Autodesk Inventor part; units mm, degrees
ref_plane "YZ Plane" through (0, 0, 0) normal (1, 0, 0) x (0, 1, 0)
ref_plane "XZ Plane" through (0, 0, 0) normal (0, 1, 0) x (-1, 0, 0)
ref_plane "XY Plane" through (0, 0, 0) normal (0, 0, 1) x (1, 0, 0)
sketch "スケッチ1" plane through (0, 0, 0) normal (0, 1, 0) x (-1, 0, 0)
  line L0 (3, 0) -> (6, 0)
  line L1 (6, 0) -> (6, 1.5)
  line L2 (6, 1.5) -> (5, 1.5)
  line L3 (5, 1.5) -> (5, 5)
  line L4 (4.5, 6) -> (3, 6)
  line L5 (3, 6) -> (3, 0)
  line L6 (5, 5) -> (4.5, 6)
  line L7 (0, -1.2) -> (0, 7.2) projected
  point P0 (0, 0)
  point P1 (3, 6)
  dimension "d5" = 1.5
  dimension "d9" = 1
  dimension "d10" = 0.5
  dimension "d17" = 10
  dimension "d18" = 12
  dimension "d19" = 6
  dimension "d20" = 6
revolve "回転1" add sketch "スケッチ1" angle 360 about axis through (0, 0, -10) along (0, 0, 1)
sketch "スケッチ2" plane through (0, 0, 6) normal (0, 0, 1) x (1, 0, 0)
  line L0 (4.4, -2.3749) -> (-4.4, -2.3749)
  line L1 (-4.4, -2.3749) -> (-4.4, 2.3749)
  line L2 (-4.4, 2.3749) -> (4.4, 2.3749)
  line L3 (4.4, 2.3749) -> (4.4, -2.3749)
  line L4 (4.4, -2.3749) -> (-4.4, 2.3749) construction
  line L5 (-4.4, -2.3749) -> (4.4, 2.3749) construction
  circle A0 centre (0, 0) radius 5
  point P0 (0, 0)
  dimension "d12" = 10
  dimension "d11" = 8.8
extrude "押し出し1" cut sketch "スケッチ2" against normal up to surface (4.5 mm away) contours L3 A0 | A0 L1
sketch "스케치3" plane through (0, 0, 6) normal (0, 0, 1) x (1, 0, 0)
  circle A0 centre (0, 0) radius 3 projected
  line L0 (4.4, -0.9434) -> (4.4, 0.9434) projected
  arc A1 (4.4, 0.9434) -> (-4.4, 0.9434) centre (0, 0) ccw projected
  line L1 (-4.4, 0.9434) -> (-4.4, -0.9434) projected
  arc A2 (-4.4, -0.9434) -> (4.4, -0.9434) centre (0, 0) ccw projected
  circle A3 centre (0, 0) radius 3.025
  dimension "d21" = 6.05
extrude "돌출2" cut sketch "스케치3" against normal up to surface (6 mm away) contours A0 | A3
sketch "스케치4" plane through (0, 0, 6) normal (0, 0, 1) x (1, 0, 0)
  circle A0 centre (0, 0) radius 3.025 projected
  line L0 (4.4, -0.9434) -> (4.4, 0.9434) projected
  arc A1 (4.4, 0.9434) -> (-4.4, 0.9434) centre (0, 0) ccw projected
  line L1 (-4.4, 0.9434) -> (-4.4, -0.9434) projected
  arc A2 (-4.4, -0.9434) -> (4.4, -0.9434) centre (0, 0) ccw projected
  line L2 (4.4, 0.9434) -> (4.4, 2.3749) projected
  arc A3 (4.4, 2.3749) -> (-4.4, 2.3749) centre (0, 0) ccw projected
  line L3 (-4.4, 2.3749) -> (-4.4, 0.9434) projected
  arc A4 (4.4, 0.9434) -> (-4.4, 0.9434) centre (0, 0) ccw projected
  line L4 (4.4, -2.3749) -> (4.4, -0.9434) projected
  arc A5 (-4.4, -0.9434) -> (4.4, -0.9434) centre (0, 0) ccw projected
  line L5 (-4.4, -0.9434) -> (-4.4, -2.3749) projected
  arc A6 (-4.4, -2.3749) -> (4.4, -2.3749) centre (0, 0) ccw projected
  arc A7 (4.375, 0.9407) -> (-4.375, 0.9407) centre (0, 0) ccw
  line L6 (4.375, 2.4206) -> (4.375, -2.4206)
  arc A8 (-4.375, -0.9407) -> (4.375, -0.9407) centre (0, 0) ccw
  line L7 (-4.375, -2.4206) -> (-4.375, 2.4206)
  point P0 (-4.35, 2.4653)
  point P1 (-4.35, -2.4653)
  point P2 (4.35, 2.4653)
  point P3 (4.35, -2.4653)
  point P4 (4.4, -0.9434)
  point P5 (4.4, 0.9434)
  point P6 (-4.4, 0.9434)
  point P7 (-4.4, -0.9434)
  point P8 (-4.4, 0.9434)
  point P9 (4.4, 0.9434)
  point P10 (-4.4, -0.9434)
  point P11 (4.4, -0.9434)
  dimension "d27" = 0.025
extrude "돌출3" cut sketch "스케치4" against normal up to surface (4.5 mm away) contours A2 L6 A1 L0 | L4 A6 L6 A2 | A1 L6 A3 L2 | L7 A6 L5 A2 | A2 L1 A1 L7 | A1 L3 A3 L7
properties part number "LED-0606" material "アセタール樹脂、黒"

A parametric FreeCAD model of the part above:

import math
import FreeCAD as App
import Part
import Sketcher
Q = App.Units.Quantity

doc = App.newDocument("Part")
params = doc.addObject("Spreadsheet::Sheet", "Params")
for row, (alias, value) in enumerate([
    ("sketch1_width", "1 mm"),
    ("sketch1_height", "6 mm"),
    ("sketch1_width2", "1.5 mm"),
    ("revolution_angle", "360 deg"),
    ("sketch2_radius", "5 mm"),
    ("pocket1_length", "4.5 mm"),
    ("sketch3_diameter", "6.05 mm"),
    ("pocket2_length", "6 mm"),
    ("sketch4_radius", "5 mm"),
    ("pocket3_length", "4.5 mm"),
], start=1):
    params.set(f"A{row}", alias)
    params.set(f"B{row}", "=" + value)
    params.setAlias(f"B{row}", alias)

body = doc.addObject("PartDesign::Body", "Body")

# Sketch on XZ plane
sketch1 = body.newObject("Sketcher::SketchObject", "Sketch")
sketch1.AttachmentSupport = (doc.getObject("XZ_Plane"), [""])
sketch1.MapMode = "FlatFace"
sketch1.addGeometry(Part.LineSegment(App.Vector(-3, 6, 0), App.Vector(-3, 0, 0)), False)
sketch1.addGeometry(Part.LineSegment(App.Vector(-3, 0, 0), App.Vector(-6, 0, 0)), False)
sketch1.addGeometry(Part.LineSegment(App.Vector(-6, 0, 0), App.Vector(-6, 1.5, 0)), False)
sketch1.addGeometry(Part.LineSegment(App.Vector(-6, 1.5, 0), App.Vector(-5, 1.5, 0)), False)
sketch1.addGeometry(Part.LineSegment(App.Vector(-5, 1.5, 0), App.Vector(-5, 5, 0)), False)
sketch1.addGeometry(Part.LineSegment(App.Vector(-5, 5, 0), App.Vector(-4.5, 6, 0)), False)
sketch1.addGeometry(Part.LineSegment(App.Vector(-4.5, 6, 0), App.Vector(-3, 6, 0)), False)
sketch1.addConstraint(Sketcher.Constraint("Coincident", 0, 2, 1, 1))
sketch1.addConstraint(Sketcher.Constraint("Coincident", 1, 2, 2, 1))
sketch1.addConstraint(Sketcher.Constraint("Coincident", 2, 2, 3, 1))
sketch1.addConstraint(Sketcher.Constraint("Coincident", 3, 2, 4, 1))
sketch1.addConstraint(Sketcher.Constraint("Coincident", 4, 2, 5, 1))
sketch1.addConstraint(Sketcher.Constraint("Coincident", 5, 2, 6, 1))
sketch1.addConstraint(Sketcher.Constraint("Coincident", 6, 2, 0, 1))
sketch1.addConstraint(Sketcher.Constraint("Vertical", 0))
sketch1.addConstraint(Sketcher.Constraint("Horizontal", 1))
sketch1.addConstraint(Sketcher.Constraint("Vertical", 2))
sketch1.addConstraint(Sketcher.Constraint("Horizontal", 3))
sketch1.addConstraint(Sketcher.Constraint("Vertical", 4))
sketch1.addConstraint(Sketcher.Constraint("Horizontal", 6))
sketch1.addConstraint(Sketcher.Constraint("PointOnObject", 0, 2, -1))
sketch1.addConstraint(Sketcher.Constraint("Equal", 6, 2))
sketch1.addConstraint(Sketcher.Constraint("DistanceX", 3, 1, 3, 2, Q("1 mm")))
sketch1.addConstraint(Sketcher.Constraint("DistanceY", 0, 2, 0, 1, Q("6 mm")))
sketch1.addConstraint(Sketcher.Constraint("DistanceX", 6, 1, 6, 2, Q("1.5 mm")))
sketch1.addConstraint(Sketcher.Constraint("DistanceX", 1, 2, -1, 1, Q("6 mm")))
sketch1.addConstraint(Sketcher.Constraint("DistanceY", 4, 2, 5, 2, Q("1 mm")))
sketch1.addConstraint(Sketcher.Constraint("DistanceX", 4, 2, 5, 2, Q("0.5 mm")))
sketch1.setExpression("Constraints[15]", "Params.sketch1_width")
sketch1.setExpression("Constraints[16]", "Params.sketch1_height")
sketch1.setExpression("Constraints[17]", "Params.sketch1_width2")
revolution = body.newObject("PartDesign::Revolution", "Revolution")
revolution.Profile = sketch1
revolution.ReferenceAxis = (sketch1, ["V_Axis"])
revolution.setExpression("Angle", "Params.revolution_angle")

# Sketch on XY plane
sketch2 = body.newObject("Sketcher::SketchObject", "Sketch001")
sketch2.AttachmentSupport = (doc.getObject("XY_Plane"), [""])
sketch2.MapMode = "FlatFace"
sketch2.AttachmentOffset = App.Placement(App.Vector(0, 0, 6), App.Rotation())
sketch2.addGeometry(Part.LineSegment(App.Vector(4.4, 2.4, 0), App.Vector(4.4, -2.4, 0)), False)
sketch2.addGeometry(Part.ArcOfCircle(Part.Circle(App.Vector(0, 0, 0), App.Vector(0, 0, 1), 5), math.radians(-28), math.radians(28)), False)
sketch2.addGeometry(Part.ArcOfCircle(Part.Circle(App.Vector(0, 0, 0), App.Vector(0, 0, 1), 5), math.radians(152), math.radians(208)), False)
sketch2.addGeometry(Part.LineSegment(App.Vector(-4.4, 2.4, 0), App.Vector(-4.4, -2.4, 0)), False)
sketch2.addConstraint(Sketcher.Constraint("Coincident", 0, 1, 1, 2))
sketch2.addConstraint(Sketcher.Constraint("Coincident", 1, 1, 0, 2))
sketch2.addConstraint(Sketcher.Constraint("Coincident", 2, 1, 3, 1))
sketch2.addConstraint(Sketcher.Constraint("Coincident", 3, 2, 2, 2))
sketch2.addConstraint(Sketcher.Constraint("Vertical", 0))
sketch2.addConstraint(Sketcher.Constraint("Vertical", 3))
sketch2.addConstraint(Sketcher.Constraint("Coincident", 1, 3, -1, 1))
sketch2.addConstraint(Sketcher.Constraint("Coincident", 2, 3, -1, 1))
sketch2.addConstraint(Sketcher.Constraint("Equal", 1, 2))
sketch2.addConstraint(Sketcher.Constraint("Horizontal", 0, 1, 2, 1))
sketch2.addConstraint(Sketcher.Constraint("Radius", 1, Q("5 mm")))
sketch2.addConstraint(Sketcher.Constraint("DistanceX", 2, 1, 0, 1, Q("8.8 mm")))
sketch2.setExpression("Constraints[10]", "Params.sketch2_radius")
pocket1 = body.newObject("PartDesign::Pocket", "Pocket")
pocket1.Profile = sketch2
pocket1.setExpression("Length", "Params.pocket1_length")

# Sketch on XY plane
sketch3 = body.newObject("Sketcher::SketchObject", "Sketch002")
sketch3.AttachmentSupport = (doc.getObject("XY_Plane"), [""])
sketch3.MapMode = "FlatFace"
sketch3.AttachmentOffset = App.Placement(App.Vector(0, 0, 6), App.Rotation())
sketch3.addGeometry(Part.Circle(App.Vector(0, 0, 0), App.Vector(0, 0, 1), 3), False)
sketch3.addConstraint(Sketcher.Constraint("Coincident", 0, 3, -1, 1))
sketch3.addConstraint(Sketcher.Constraint("Diameter", 0, Q("6.05 mm")))
sketch3.setExpression("Constraints[1]", "Params.sketch3_diameter")
pocket2 = body.newObject("PartDesign::Pocket", "Pocket001")
pocket2.Profile = sketch3
pocket2.setExpression("Length", "Params.pocket2_length")

# Sketch on XY plane
sketch4 = body.newObject("Sketcher::SketchObject", "Sketch003")
sketch4.AttachmentSupport = (doc.getObject("XY_Plane"), [""])
sketch4.MapMode = "FlatFace"
sketch4.AttachmentOffset = App.Placement(App.Vector(0, 0, 6), App.Rotation())
sketch4.addGeometry(Part.ArcOfCircle(Part.Circle(App.Vector(0, 0, 0), App.Vector(0, 0, 1), 5), math.radians(-28.95), math.radians(-28.36)), False)
sketch4.addGeometry(Part.LineSegment(App.Vector(4.4, -2.37, 0), App.Vector(4.4, 2.37, 0)), False)
sketch4.addGeometry(Part.ArcOfCircle(Part.Circle(App.Vector(0, 0, 0), App.Vector(0, 0, 1), 5), math.radians(28.36), math.radians(28.95)), False)
sketch4.addGeometry(Part.LineSegment(App.Vector(4.38, 2.42, 0), App.Vector(4.38, -2.42, 0)), False)
sketch4.addGeometry(Part.LineSegment(App.Vector(-4.38, -2.42, 0), App.Vector(-4.38, 2.42, 0)), False)
sketch4.addGeometry(Part.ArcOfCircle(Part.Circle(App.Vector(0, 0, 0), App.Vector(0, 0, 1), 5), math.radians(151.05), math.radians(151.64)), False)
sketch4.addGeometry(Part.LineSegment(App.Vector(-4.4, 2.37, 0), App.Vector(-4.4, -2.37, 0)), False)
sketch4.addGeometry(Part.ArcOfCircle(Part.Circle(App.Vector(0, 0, 0), App.Vector(0, 0, 1), 5), math.radians(-151.64), math.radians(-151.05)), False)
sketch4.addConstraint(Sketcher.Constraint("Coincident", 0, 2, 1, 1))
sketch4.addConstraint(Sketcher.Constraint("Coincident", 1, 2, 2, 1))
sketch4.addConstraint(Sketcher.Constraint("Coincident", 2, 2, 3, 1))
sketch4.addConstraint(Sketcher.Constraint("Coincident", 3, 2, 0, 1))
sketch4.addConstraint(Sketcher.Constraint("Coincident", 4, 2, 5, 1))
sketch4.addConstraint(Sketcher.Constraint("Coincident", 5, 2, 6, 1))
sketch4.addConstraint(Sketcher.Constraint("Coincident", 6, 2, 7, 1))
sketch4.addConstraint(Sketcher.Constraint("Coincident", 7, 2, 4, 1))
sketch4.addConstraint(Sketcher.Constraint("Vertical", 1))
sketch4.addConstraint(Sketcher.Constraint("Vertical", 3))
sketch4.addConstraint(Sketcher.Constraint("Vertical", 4))
sketch4.addConstraint(Sketcher.Constraint("Vertical", 6))
sketch4.addConstraint(Sketcher.Constraint("Coincident", 0, 3, -1, 1))
sketch4.addConstraint(Sketcher.Constraint("Coincident", 2, 3, -1, 1))
sketch4.addConstraint(Sketcher.Constraint("Coincident", 5, 3, -1, 1))
sketch4.addConstraint(Sketcher.Constraint("Coincident", 7, 3, -1, 1))
sketch4.addConstraint(Sketcher.Constraint("Equal", 0, 2))
sketch4.addConstraint(Sketcher.Constraint("Equal", 2, 5))
sketch4.addConstraint(Sketcher.Constraint("Equal", 5, 7))
sketch4.addConstraint(Sketcher.Constraint("Horizontal", 2, 2, 4, 2))
sketch4.addConstraint(Sketcher.Constraint("Horizontal", 1, 2, 5, 2))
sketch4.addConstraint(Sketcher.Constraint("Radius", 0, Q("5 mm")))
sketch4.addConstraint(Sketcher.Constraint("DistanceX", 2, 2, 1, 2, Q("0.025 mm")))
sketch4.addConstraint(Sketcher.Constraint("DistanceX", -1, 1, 0, 2, Q("4.4 mm")))
sketch4.setExpression("Constraints[21]", "Params.sketch4_radius")
pocket3 = body.newObject("PartDesign::Pocket", "Pocket002")
pocket3.Profile = sketch4
pocket3.setExpression("Length", "Params.pocket3_length")

doc.recompute()
